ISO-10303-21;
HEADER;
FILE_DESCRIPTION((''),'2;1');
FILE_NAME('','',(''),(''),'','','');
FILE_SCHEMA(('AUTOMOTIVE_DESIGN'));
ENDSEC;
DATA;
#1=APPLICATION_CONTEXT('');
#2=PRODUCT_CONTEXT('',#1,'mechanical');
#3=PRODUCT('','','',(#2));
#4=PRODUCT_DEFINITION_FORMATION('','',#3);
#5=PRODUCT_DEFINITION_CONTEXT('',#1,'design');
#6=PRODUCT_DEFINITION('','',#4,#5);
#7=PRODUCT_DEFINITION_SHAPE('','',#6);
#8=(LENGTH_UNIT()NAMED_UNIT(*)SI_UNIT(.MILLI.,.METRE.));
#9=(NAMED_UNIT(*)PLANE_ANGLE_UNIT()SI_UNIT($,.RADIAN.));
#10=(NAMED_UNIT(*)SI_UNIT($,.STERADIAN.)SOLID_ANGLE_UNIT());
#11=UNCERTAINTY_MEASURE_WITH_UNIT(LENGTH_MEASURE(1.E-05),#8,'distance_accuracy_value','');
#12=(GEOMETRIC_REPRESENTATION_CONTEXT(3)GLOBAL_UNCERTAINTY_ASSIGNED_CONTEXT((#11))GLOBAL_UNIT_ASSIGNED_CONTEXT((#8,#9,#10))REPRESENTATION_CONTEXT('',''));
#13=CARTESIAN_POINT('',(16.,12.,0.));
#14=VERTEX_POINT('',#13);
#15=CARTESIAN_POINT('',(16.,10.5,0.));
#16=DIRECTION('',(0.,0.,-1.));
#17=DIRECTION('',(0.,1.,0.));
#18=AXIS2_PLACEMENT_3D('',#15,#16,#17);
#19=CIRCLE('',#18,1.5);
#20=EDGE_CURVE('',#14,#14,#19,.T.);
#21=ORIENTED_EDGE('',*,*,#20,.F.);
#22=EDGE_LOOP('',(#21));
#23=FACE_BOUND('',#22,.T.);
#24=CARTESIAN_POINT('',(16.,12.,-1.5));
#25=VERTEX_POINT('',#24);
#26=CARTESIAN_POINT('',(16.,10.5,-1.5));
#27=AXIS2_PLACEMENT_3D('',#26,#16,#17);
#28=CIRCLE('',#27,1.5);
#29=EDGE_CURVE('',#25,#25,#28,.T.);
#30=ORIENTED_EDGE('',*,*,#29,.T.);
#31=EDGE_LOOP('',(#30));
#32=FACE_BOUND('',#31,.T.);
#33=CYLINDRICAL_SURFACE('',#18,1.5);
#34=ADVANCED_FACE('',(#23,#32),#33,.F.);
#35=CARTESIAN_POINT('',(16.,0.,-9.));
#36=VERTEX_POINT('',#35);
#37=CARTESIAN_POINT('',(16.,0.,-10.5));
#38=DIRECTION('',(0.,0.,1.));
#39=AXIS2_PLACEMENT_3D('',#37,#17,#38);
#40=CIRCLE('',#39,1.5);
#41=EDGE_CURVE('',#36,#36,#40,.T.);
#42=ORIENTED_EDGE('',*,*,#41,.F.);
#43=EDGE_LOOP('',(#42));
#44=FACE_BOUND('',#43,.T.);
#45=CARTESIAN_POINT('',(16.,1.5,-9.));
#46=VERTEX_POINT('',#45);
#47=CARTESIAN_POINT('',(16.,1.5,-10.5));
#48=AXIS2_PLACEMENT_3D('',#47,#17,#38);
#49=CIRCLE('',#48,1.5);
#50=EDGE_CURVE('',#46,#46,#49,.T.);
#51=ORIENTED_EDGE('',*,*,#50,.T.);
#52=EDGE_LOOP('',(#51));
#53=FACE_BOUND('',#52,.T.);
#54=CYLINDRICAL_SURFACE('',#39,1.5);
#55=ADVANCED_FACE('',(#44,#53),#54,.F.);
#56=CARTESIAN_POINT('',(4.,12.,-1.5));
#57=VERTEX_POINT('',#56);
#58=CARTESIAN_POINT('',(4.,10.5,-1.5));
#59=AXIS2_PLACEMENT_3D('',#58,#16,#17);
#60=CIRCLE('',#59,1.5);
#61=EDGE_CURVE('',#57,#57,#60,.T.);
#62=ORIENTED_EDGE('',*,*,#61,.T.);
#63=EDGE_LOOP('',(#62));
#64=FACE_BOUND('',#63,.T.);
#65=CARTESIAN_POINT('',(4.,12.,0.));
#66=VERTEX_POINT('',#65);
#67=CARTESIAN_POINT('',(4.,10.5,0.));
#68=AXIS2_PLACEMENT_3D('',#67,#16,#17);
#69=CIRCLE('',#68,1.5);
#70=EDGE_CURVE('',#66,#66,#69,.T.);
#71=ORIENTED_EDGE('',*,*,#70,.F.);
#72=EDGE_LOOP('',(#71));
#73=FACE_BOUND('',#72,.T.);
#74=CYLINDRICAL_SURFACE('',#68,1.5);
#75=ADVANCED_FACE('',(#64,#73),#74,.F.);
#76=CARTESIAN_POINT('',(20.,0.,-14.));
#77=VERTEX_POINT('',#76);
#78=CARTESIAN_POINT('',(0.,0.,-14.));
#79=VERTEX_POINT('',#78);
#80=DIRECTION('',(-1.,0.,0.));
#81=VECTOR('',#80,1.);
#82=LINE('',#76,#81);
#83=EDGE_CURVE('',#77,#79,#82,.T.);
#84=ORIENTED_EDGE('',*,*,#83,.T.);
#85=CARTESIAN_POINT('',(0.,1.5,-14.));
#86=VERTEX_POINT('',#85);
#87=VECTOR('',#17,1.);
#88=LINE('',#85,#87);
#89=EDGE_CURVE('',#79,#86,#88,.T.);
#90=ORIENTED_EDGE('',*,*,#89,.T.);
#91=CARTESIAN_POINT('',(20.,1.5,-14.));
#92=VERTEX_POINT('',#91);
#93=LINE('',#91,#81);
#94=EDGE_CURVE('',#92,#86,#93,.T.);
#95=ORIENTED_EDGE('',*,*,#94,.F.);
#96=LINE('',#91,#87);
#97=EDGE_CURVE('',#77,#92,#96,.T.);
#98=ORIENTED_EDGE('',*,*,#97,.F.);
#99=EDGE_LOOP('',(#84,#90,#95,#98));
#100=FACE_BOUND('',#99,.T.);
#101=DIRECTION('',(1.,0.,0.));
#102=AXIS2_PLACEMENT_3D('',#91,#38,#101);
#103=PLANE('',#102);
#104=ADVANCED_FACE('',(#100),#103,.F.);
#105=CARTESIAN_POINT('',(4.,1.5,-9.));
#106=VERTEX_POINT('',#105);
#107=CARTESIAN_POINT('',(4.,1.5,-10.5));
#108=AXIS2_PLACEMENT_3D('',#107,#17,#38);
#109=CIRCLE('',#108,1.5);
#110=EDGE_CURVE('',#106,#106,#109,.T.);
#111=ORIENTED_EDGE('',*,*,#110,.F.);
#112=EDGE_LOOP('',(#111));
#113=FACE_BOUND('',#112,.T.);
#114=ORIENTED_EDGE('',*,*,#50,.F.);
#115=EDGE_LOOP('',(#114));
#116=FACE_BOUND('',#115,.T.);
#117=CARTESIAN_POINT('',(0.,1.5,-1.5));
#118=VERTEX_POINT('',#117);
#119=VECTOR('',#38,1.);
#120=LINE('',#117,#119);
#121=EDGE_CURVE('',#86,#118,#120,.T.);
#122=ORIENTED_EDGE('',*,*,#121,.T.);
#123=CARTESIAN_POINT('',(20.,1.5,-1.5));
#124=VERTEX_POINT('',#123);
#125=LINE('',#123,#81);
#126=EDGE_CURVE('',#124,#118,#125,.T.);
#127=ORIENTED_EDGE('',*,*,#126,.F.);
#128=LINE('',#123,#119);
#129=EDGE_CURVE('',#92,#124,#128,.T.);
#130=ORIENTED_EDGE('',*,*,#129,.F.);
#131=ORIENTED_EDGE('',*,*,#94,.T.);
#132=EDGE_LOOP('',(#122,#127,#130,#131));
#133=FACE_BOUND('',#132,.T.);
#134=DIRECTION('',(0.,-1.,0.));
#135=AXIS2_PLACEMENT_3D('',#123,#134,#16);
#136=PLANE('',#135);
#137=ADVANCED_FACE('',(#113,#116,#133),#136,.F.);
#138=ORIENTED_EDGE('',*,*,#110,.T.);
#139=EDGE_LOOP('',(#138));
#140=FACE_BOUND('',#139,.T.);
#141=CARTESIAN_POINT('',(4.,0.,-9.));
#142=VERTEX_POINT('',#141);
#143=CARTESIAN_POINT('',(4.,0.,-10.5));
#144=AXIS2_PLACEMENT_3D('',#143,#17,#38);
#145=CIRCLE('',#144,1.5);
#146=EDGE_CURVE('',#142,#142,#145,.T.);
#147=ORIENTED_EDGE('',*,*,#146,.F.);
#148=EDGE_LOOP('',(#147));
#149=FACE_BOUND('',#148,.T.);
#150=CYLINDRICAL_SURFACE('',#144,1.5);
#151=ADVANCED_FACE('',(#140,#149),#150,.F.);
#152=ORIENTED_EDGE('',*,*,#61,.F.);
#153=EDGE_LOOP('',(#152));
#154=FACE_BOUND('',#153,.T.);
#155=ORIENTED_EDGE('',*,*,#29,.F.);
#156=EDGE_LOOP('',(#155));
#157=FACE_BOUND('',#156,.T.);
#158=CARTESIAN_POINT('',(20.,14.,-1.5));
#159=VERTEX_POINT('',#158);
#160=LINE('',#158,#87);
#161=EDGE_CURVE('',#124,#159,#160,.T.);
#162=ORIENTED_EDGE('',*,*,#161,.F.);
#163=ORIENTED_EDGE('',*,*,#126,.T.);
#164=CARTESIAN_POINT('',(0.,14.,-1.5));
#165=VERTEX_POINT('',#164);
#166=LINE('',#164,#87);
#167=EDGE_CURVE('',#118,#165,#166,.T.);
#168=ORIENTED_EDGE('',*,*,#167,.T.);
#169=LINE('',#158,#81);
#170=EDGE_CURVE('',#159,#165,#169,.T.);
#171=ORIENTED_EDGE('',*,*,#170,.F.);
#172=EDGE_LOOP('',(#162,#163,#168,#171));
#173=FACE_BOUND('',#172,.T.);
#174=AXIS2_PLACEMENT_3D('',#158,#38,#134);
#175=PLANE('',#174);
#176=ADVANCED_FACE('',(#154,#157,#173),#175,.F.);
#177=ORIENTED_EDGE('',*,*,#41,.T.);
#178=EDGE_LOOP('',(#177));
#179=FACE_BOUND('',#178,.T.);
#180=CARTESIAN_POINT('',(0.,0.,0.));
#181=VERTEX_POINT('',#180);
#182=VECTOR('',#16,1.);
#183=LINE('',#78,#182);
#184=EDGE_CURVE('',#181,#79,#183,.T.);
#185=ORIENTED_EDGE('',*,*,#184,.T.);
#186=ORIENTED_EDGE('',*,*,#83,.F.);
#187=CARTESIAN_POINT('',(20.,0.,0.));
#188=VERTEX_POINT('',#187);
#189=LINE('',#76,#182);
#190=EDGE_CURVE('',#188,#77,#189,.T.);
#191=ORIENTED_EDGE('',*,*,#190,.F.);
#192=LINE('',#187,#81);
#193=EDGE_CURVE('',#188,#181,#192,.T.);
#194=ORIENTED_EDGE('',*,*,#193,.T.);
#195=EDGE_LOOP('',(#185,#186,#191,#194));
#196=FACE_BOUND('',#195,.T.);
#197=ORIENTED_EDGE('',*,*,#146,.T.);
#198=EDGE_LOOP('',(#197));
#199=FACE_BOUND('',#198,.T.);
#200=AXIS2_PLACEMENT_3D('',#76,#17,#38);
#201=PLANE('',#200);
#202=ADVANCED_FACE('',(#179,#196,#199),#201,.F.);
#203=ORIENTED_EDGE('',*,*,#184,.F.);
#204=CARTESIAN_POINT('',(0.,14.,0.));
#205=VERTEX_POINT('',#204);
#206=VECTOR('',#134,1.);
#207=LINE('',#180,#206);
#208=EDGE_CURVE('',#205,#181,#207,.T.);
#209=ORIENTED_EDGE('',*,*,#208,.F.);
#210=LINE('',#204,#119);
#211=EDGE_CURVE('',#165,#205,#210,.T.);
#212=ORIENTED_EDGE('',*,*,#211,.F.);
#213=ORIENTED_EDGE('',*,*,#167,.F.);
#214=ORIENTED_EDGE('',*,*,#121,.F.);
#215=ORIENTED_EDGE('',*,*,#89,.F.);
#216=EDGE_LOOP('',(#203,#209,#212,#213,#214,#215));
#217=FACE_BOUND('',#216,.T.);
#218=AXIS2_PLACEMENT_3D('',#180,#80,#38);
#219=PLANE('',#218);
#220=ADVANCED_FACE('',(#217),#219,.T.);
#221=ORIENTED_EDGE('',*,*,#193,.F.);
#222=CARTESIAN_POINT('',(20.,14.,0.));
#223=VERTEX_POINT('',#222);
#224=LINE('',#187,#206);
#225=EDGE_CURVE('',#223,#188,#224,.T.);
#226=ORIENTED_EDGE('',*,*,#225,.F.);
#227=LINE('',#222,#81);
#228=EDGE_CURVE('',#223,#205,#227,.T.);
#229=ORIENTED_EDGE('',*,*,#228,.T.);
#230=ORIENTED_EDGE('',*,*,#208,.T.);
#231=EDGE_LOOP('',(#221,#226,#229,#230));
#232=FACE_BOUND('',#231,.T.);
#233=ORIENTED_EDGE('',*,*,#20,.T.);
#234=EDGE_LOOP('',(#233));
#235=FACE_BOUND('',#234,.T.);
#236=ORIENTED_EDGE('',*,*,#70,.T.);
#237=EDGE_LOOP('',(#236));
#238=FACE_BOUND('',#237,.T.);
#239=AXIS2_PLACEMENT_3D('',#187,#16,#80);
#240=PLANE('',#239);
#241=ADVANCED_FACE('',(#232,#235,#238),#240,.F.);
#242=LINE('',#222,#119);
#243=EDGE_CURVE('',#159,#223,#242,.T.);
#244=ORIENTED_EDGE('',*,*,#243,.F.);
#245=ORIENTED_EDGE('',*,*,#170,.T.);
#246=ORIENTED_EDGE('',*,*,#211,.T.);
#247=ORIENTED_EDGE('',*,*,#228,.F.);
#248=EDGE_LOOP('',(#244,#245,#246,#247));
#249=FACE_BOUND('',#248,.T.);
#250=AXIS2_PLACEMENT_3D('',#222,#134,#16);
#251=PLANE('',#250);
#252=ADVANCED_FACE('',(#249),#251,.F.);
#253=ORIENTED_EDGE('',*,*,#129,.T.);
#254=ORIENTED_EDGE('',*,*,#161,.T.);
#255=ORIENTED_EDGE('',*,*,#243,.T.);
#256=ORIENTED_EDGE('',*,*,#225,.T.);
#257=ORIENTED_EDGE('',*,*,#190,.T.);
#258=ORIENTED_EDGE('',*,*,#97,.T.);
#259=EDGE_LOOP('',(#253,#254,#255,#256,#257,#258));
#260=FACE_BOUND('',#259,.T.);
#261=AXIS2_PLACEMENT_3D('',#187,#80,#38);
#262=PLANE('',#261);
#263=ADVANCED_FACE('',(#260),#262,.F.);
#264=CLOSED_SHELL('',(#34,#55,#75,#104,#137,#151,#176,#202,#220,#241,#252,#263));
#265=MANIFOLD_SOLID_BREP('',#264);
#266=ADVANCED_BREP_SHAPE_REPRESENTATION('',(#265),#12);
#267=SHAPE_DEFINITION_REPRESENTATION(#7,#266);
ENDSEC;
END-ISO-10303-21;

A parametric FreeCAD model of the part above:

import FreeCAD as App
import Part
import Sketcher
Q = App.Units.Quantity

doc = App.newDocument("Part")
body = doc.addObject("PartDesign::Body", "Body")

sketch1 = doc.addObject("Sketcher::SketchObject", "Sketch")
body.addObject(sketch1)
sketch1.AttachmentSupport = (doc.YZ_Plane, [""])
sketch1.MapMode = "FlatFace"
sketch1.addGeometry([
    Part.LineSegment(App.Vector(14, 0, 0), App.Vector(0, 0, 0)),
    Part.LineSegment(App.Vector(0, 0, 0), App.Vector(0, -14, 0)),
    Part.LineSegment(App.Vector(0, -14, 0), App.Vector(1.5, -14, 0)),
    Part.LineSegment(App.Vector(1.5, -14, 0), App.Vector(1.5, -1.5, 0)),
    Part.LineSegment(App.Vector(1.5, -1.5, 0), App.Vector(14, -1.5, 0)),
    Part.LineSegment(App.Vector(14, -1.5, 0), App.Vector(14, 0, 0)),
], False)
sketch1.addConstraint([
    Sketcher.Constraint("Coincident", 0, 2, 1, 1),
    Sketcher.Constraint("Coincident", 1, 2, 2, 1),
    Sketcher.Constraint("Coincident", 2, 2, 3, 1),
    Sketcher.Constraint("Coincident", 3, 2, 4, 1),
    Sketcher.Constraint("Coincident", 4, 2, 5, 1),
    Sketcher.Constraint("Coincident", 5, 2, 0, 1),
    Sketcher.Constraint("Horizontal", 0),
    Sketcher.Constraint("Vertical", 1),
    Sketcher.Constraint("Horizontal", 2),
    Sketcher.Constraint("Vertical", 3),
    Sketcher.Constraint("Horizontal", 4),
    Sketcher.Constraint("Vertical", 5),
    Sketcher.Constraint("Coincident", 0, 2, -1, 1),
    Sketcher.Constraint("Equal", 0, 1),
    Sketcher.Constraint("Equal", 4, 3),
    Sketcher.Constraint("DistanceX", 0, 2, 0, 1, Q("14 mm")),
    Sketcher.Constraint("DistanceX", 2, 1, 2, 2, Q("1.5 mm")),
])
pad1 = doc.addObject("PartDesign::Pad", "Pad")
body.addObject(pad1)
pad1.Profile = sketch1
pad1.Length = 20

sketch2 = doc.addObject("Sketcher::SketchObject", "Sketch001")
body.addObject(sketch2)
sketch2.AttachmentSupport = (doc.XY_Plane, [""])
sketch2.MapMode = "FlatFace"
sketch2.AttachmentOffset = App.Placement(App.Vector(0, 0, -1.5), App.Rotation())
sketch2.addGeometry([
    Part.Circle(App.Vector(16, 10.5, 0), App.Vector(0, 0, 1), 1.5),
    Part.Circle(App.Vector(4, 10.5, 0), App.Vector(0, 0, 1), 1.5),
], False)
sketch2.addConstraint([
    Sketcher.Constraint("Equal", 0, 1),
    Sketcher.Constraint("Horizontal", 0, 3, 1, 3),
    Sketcher.Constraint("Diameter", 0, Q("3 mm")),
    Sketcher.Constraint("DistanceX", -1, 1, 0, 3, Q("16 mm")),
    Sketcher.Constraint("DistanceX", -1, 1, 1, 3, Q("4 mm")),
    Sketcher.Constraint("DistanceY", -1, 1, 0, 3, Q("10.5 mm")),
])
pocket1 = doc.addObject("PartDesign::Pocket", "Pocket")
body.addObject(pocket1)
pocket1.Profile = sketch2
pocket1.Type = "ThroughAll"
pocket1.Reversed = True

sketch3 = doc.addObject("Sketcher::SketchObject", "Sketch002")
body.addObject(sketch3)
sketch3.AttachmentSupport = (doc.XZ_Plane, [""])
sketch3.MapMode = "FlatFace"
sketch3.AttachmentOffset = App.Placement(App.Vector(0, 0, -1.5), App.Rotation())
sketch3.addGeometry([
    Part.Circle(App.Vector(4, -10.5, 0), App.Vector(0, 0, 1), 1.5),
    Part.Circle(App.Vector(16, -10.5, 0), App.Vector(0, 0, 1), 1.5),
], False)
sketch3.addConstraint([
    Sketcher.Constraint("Equal", 0, 1),
    Sketcher.Constraint("Horizontal", 0, 3, 1, 3),
    Sketcher.Constraint("Diameter", 0, Q("3 mm")),
    Sketcher.Constraint("DistanceX", -1, 1, 0, 3, Q("4 mm")),
    Sketcher.Constraint("DistanceX", -1, 1, 1, 3, Q("16 mm")),
    Sketcher.Constraint("DistanceY", 0, 3, -1, 1, Q("10.5 mm")),
])
pocket2 = doc.addObject("PartDesign::Pocket", "Pocket001")
body.addObject(pocket2)
pocket2.Profile = sketch3
pocket2.Type = "ThroughAll"
pocket2.Reversed = True

doc.recompute()
